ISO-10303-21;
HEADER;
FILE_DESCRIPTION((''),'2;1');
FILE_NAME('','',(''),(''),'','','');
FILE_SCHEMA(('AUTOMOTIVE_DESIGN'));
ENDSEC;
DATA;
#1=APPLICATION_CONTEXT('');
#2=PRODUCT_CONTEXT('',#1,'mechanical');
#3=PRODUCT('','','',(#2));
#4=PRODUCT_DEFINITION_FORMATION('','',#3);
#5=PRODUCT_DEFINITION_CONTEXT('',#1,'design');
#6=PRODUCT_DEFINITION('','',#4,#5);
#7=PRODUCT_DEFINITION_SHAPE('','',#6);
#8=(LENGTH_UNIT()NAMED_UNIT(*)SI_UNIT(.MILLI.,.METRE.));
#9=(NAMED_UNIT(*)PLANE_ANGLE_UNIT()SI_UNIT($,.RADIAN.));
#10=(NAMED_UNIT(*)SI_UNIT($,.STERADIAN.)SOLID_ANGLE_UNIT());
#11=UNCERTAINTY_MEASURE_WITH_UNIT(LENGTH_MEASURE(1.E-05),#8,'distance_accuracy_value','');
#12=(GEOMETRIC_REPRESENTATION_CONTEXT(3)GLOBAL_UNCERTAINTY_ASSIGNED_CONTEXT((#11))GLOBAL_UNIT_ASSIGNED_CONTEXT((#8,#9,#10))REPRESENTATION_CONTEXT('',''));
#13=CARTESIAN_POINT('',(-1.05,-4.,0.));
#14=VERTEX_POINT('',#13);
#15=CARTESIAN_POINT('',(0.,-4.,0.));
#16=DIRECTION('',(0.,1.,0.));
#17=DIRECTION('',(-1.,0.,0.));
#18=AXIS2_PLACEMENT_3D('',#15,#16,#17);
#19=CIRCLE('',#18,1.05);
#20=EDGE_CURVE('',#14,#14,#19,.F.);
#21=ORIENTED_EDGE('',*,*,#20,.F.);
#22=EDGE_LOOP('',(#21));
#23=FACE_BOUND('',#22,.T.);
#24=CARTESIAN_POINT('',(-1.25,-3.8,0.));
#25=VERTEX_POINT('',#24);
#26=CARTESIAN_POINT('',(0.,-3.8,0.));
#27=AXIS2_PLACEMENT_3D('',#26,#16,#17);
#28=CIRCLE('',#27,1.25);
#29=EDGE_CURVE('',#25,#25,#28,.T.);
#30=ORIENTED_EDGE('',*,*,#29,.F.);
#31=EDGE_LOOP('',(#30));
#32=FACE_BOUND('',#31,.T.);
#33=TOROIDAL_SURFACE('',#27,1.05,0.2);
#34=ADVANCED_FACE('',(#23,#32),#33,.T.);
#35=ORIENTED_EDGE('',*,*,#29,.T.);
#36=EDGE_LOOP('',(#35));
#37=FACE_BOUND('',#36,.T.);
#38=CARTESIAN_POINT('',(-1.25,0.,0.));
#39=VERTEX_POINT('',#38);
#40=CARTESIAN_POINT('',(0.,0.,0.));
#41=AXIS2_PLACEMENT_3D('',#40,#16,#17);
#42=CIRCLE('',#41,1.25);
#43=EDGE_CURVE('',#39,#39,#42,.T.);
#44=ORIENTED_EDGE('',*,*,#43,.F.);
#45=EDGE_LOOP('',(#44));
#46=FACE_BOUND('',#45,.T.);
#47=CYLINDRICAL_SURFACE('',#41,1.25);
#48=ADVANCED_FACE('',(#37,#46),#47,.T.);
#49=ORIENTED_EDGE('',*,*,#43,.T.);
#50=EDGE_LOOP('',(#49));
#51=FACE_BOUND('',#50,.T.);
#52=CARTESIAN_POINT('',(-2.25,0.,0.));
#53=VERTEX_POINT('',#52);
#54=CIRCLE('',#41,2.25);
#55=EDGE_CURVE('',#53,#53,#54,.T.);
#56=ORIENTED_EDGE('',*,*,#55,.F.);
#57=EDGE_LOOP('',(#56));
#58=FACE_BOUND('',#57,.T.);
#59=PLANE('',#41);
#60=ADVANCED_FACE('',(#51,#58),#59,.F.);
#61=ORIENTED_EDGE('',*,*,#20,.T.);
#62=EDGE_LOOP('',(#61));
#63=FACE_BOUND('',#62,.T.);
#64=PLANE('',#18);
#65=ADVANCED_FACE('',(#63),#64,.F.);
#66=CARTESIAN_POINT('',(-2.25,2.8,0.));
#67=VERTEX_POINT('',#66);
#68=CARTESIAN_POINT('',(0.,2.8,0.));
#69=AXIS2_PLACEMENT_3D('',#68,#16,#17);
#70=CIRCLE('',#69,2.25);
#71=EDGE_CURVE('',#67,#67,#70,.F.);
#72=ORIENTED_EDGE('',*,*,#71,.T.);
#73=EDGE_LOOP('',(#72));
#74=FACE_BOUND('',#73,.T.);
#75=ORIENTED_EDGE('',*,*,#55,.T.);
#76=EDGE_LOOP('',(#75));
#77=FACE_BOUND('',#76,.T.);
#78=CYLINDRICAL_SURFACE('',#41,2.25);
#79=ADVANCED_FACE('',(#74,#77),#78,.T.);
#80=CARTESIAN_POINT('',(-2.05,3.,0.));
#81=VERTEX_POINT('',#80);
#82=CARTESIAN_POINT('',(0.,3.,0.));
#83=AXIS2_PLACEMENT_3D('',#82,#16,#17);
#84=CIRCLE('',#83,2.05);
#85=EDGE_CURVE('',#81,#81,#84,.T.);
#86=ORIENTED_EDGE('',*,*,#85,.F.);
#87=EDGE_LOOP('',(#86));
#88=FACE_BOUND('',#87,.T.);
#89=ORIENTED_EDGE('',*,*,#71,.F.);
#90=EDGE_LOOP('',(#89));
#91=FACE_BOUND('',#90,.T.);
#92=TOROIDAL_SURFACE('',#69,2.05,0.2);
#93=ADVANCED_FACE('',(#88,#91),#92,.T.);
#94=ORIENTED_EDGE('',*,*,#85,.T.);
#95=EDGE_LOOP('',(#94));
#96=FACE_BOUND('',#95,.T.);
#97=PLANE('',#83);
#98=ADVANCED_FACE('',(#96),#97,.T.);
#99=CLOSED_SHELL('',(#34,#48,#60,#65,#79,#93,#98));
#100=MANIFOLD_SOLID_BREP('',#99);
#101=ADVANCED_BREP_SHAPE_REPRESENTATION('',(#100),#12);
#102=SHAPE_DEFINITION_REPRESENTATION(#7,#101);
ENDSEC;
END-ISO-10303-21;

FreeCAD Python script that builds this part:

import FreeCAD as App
import Part
import Sketcher

V = App.Vector
Q = App.Units.Quantity


def edges_at(feature, points):
    """Names of the edges that pass closest to the given points."""
    edges = feature.Shape.Edges
    near = lambda p: min(range(len(edges)), key=lambda i: edges[i].distToShape(Part.Vertex(*p))[0])
    return sorted({f"Edge{near(p) + 1}" for p in points})


def add_polygon(sketch, points):
    """Adds a closed chain of lines whose ends are joined by coincident constraints."""
    first, n = sketch.GeometryCount, len(points)
    for a, b in zip(points, points[1:] + points[:1]):
        sketch.addGeometry(Part.LineSegment(App.Vector(*a, 0), App.Vector(*b, 0)), False)
    for i in range(n):
        sketch.addConstraint(Sketcher.Constraint("Coincident", first + i, 2, first + (i + 1) % n, 1))

doc = App.newDocument("Part")
body = doc.addObject("PartDesign::Body", "Body")

sketch1 = doc.addObject("Sketcher::SketchObject", "Sketch")
body.addObject(sketch1)
sketch1.AttachmentSupport = (doc.XY_Plane, [""])
sketch1.MapMode = "FlatFace"
add_polygon(sketch1, [(0, 3), (0, -4), (1.2, -4), (1.2, 0), (2.2, 0), (2.2, 3)])
sketch1.addConstraint([
    Sketcher.Constraint("Vertical", 0),
    Sketcher.Constraint("Horizontal", 1),
    Sketcher.Constraint("Vertical", 2),
    Sketcher.Constraint("Horizontal", 3),
    Sketcher.Constraint("Vertical", 4),
    Sketcher.Constraint("Horizontal", 5),
    Sketcher.Constraint("PointOnObject", 0, 2, -2),
    Sketcher.Constraint("PointOnObject", 2, 2, -1),
    Sketcher.Constraint("DistanceX", 3, 1, 3, 2, Q("1 mm")),
    Sketcher.Constraint("DistanceY", 0, 2, 0, 1, Q("7 mm")),
    Sketcher.Constraint("DistanceY", 2, 1, 2, 2, Q("4 mm")),
    Sketcher.Constraint("DistanceX", 1, 1, 1, 2, Q("1.25 mm")),
])
revolution = doc.addObject("PartDesign::Revolution", "Revolution")
body.addObject(revolution)
revolution.Profile = sketch1
revolution.ReferenceAxis = (sketch1, ["V_Axis"])
revolution.Angle = 360
doc.recompute()

fillet = doc.addObject("PartDesign::Fillet", "Fillet")
body.addObject(fillet)
fillet.Base = (revolution, edges_at(revolution, [(-2.25, 3, 0)]))
fillet.Radius = 0.2
doc.recompute()

fillet2 = doc.addObject("PartDesign::Fillet", "Fillet001")
body.addObject(fillet2)
fillet2.Base = (fillet, edges_at(fillet, [(-1.25, -4, 0)]))
fillet2.Radius = 0.2

doc.recompute()
